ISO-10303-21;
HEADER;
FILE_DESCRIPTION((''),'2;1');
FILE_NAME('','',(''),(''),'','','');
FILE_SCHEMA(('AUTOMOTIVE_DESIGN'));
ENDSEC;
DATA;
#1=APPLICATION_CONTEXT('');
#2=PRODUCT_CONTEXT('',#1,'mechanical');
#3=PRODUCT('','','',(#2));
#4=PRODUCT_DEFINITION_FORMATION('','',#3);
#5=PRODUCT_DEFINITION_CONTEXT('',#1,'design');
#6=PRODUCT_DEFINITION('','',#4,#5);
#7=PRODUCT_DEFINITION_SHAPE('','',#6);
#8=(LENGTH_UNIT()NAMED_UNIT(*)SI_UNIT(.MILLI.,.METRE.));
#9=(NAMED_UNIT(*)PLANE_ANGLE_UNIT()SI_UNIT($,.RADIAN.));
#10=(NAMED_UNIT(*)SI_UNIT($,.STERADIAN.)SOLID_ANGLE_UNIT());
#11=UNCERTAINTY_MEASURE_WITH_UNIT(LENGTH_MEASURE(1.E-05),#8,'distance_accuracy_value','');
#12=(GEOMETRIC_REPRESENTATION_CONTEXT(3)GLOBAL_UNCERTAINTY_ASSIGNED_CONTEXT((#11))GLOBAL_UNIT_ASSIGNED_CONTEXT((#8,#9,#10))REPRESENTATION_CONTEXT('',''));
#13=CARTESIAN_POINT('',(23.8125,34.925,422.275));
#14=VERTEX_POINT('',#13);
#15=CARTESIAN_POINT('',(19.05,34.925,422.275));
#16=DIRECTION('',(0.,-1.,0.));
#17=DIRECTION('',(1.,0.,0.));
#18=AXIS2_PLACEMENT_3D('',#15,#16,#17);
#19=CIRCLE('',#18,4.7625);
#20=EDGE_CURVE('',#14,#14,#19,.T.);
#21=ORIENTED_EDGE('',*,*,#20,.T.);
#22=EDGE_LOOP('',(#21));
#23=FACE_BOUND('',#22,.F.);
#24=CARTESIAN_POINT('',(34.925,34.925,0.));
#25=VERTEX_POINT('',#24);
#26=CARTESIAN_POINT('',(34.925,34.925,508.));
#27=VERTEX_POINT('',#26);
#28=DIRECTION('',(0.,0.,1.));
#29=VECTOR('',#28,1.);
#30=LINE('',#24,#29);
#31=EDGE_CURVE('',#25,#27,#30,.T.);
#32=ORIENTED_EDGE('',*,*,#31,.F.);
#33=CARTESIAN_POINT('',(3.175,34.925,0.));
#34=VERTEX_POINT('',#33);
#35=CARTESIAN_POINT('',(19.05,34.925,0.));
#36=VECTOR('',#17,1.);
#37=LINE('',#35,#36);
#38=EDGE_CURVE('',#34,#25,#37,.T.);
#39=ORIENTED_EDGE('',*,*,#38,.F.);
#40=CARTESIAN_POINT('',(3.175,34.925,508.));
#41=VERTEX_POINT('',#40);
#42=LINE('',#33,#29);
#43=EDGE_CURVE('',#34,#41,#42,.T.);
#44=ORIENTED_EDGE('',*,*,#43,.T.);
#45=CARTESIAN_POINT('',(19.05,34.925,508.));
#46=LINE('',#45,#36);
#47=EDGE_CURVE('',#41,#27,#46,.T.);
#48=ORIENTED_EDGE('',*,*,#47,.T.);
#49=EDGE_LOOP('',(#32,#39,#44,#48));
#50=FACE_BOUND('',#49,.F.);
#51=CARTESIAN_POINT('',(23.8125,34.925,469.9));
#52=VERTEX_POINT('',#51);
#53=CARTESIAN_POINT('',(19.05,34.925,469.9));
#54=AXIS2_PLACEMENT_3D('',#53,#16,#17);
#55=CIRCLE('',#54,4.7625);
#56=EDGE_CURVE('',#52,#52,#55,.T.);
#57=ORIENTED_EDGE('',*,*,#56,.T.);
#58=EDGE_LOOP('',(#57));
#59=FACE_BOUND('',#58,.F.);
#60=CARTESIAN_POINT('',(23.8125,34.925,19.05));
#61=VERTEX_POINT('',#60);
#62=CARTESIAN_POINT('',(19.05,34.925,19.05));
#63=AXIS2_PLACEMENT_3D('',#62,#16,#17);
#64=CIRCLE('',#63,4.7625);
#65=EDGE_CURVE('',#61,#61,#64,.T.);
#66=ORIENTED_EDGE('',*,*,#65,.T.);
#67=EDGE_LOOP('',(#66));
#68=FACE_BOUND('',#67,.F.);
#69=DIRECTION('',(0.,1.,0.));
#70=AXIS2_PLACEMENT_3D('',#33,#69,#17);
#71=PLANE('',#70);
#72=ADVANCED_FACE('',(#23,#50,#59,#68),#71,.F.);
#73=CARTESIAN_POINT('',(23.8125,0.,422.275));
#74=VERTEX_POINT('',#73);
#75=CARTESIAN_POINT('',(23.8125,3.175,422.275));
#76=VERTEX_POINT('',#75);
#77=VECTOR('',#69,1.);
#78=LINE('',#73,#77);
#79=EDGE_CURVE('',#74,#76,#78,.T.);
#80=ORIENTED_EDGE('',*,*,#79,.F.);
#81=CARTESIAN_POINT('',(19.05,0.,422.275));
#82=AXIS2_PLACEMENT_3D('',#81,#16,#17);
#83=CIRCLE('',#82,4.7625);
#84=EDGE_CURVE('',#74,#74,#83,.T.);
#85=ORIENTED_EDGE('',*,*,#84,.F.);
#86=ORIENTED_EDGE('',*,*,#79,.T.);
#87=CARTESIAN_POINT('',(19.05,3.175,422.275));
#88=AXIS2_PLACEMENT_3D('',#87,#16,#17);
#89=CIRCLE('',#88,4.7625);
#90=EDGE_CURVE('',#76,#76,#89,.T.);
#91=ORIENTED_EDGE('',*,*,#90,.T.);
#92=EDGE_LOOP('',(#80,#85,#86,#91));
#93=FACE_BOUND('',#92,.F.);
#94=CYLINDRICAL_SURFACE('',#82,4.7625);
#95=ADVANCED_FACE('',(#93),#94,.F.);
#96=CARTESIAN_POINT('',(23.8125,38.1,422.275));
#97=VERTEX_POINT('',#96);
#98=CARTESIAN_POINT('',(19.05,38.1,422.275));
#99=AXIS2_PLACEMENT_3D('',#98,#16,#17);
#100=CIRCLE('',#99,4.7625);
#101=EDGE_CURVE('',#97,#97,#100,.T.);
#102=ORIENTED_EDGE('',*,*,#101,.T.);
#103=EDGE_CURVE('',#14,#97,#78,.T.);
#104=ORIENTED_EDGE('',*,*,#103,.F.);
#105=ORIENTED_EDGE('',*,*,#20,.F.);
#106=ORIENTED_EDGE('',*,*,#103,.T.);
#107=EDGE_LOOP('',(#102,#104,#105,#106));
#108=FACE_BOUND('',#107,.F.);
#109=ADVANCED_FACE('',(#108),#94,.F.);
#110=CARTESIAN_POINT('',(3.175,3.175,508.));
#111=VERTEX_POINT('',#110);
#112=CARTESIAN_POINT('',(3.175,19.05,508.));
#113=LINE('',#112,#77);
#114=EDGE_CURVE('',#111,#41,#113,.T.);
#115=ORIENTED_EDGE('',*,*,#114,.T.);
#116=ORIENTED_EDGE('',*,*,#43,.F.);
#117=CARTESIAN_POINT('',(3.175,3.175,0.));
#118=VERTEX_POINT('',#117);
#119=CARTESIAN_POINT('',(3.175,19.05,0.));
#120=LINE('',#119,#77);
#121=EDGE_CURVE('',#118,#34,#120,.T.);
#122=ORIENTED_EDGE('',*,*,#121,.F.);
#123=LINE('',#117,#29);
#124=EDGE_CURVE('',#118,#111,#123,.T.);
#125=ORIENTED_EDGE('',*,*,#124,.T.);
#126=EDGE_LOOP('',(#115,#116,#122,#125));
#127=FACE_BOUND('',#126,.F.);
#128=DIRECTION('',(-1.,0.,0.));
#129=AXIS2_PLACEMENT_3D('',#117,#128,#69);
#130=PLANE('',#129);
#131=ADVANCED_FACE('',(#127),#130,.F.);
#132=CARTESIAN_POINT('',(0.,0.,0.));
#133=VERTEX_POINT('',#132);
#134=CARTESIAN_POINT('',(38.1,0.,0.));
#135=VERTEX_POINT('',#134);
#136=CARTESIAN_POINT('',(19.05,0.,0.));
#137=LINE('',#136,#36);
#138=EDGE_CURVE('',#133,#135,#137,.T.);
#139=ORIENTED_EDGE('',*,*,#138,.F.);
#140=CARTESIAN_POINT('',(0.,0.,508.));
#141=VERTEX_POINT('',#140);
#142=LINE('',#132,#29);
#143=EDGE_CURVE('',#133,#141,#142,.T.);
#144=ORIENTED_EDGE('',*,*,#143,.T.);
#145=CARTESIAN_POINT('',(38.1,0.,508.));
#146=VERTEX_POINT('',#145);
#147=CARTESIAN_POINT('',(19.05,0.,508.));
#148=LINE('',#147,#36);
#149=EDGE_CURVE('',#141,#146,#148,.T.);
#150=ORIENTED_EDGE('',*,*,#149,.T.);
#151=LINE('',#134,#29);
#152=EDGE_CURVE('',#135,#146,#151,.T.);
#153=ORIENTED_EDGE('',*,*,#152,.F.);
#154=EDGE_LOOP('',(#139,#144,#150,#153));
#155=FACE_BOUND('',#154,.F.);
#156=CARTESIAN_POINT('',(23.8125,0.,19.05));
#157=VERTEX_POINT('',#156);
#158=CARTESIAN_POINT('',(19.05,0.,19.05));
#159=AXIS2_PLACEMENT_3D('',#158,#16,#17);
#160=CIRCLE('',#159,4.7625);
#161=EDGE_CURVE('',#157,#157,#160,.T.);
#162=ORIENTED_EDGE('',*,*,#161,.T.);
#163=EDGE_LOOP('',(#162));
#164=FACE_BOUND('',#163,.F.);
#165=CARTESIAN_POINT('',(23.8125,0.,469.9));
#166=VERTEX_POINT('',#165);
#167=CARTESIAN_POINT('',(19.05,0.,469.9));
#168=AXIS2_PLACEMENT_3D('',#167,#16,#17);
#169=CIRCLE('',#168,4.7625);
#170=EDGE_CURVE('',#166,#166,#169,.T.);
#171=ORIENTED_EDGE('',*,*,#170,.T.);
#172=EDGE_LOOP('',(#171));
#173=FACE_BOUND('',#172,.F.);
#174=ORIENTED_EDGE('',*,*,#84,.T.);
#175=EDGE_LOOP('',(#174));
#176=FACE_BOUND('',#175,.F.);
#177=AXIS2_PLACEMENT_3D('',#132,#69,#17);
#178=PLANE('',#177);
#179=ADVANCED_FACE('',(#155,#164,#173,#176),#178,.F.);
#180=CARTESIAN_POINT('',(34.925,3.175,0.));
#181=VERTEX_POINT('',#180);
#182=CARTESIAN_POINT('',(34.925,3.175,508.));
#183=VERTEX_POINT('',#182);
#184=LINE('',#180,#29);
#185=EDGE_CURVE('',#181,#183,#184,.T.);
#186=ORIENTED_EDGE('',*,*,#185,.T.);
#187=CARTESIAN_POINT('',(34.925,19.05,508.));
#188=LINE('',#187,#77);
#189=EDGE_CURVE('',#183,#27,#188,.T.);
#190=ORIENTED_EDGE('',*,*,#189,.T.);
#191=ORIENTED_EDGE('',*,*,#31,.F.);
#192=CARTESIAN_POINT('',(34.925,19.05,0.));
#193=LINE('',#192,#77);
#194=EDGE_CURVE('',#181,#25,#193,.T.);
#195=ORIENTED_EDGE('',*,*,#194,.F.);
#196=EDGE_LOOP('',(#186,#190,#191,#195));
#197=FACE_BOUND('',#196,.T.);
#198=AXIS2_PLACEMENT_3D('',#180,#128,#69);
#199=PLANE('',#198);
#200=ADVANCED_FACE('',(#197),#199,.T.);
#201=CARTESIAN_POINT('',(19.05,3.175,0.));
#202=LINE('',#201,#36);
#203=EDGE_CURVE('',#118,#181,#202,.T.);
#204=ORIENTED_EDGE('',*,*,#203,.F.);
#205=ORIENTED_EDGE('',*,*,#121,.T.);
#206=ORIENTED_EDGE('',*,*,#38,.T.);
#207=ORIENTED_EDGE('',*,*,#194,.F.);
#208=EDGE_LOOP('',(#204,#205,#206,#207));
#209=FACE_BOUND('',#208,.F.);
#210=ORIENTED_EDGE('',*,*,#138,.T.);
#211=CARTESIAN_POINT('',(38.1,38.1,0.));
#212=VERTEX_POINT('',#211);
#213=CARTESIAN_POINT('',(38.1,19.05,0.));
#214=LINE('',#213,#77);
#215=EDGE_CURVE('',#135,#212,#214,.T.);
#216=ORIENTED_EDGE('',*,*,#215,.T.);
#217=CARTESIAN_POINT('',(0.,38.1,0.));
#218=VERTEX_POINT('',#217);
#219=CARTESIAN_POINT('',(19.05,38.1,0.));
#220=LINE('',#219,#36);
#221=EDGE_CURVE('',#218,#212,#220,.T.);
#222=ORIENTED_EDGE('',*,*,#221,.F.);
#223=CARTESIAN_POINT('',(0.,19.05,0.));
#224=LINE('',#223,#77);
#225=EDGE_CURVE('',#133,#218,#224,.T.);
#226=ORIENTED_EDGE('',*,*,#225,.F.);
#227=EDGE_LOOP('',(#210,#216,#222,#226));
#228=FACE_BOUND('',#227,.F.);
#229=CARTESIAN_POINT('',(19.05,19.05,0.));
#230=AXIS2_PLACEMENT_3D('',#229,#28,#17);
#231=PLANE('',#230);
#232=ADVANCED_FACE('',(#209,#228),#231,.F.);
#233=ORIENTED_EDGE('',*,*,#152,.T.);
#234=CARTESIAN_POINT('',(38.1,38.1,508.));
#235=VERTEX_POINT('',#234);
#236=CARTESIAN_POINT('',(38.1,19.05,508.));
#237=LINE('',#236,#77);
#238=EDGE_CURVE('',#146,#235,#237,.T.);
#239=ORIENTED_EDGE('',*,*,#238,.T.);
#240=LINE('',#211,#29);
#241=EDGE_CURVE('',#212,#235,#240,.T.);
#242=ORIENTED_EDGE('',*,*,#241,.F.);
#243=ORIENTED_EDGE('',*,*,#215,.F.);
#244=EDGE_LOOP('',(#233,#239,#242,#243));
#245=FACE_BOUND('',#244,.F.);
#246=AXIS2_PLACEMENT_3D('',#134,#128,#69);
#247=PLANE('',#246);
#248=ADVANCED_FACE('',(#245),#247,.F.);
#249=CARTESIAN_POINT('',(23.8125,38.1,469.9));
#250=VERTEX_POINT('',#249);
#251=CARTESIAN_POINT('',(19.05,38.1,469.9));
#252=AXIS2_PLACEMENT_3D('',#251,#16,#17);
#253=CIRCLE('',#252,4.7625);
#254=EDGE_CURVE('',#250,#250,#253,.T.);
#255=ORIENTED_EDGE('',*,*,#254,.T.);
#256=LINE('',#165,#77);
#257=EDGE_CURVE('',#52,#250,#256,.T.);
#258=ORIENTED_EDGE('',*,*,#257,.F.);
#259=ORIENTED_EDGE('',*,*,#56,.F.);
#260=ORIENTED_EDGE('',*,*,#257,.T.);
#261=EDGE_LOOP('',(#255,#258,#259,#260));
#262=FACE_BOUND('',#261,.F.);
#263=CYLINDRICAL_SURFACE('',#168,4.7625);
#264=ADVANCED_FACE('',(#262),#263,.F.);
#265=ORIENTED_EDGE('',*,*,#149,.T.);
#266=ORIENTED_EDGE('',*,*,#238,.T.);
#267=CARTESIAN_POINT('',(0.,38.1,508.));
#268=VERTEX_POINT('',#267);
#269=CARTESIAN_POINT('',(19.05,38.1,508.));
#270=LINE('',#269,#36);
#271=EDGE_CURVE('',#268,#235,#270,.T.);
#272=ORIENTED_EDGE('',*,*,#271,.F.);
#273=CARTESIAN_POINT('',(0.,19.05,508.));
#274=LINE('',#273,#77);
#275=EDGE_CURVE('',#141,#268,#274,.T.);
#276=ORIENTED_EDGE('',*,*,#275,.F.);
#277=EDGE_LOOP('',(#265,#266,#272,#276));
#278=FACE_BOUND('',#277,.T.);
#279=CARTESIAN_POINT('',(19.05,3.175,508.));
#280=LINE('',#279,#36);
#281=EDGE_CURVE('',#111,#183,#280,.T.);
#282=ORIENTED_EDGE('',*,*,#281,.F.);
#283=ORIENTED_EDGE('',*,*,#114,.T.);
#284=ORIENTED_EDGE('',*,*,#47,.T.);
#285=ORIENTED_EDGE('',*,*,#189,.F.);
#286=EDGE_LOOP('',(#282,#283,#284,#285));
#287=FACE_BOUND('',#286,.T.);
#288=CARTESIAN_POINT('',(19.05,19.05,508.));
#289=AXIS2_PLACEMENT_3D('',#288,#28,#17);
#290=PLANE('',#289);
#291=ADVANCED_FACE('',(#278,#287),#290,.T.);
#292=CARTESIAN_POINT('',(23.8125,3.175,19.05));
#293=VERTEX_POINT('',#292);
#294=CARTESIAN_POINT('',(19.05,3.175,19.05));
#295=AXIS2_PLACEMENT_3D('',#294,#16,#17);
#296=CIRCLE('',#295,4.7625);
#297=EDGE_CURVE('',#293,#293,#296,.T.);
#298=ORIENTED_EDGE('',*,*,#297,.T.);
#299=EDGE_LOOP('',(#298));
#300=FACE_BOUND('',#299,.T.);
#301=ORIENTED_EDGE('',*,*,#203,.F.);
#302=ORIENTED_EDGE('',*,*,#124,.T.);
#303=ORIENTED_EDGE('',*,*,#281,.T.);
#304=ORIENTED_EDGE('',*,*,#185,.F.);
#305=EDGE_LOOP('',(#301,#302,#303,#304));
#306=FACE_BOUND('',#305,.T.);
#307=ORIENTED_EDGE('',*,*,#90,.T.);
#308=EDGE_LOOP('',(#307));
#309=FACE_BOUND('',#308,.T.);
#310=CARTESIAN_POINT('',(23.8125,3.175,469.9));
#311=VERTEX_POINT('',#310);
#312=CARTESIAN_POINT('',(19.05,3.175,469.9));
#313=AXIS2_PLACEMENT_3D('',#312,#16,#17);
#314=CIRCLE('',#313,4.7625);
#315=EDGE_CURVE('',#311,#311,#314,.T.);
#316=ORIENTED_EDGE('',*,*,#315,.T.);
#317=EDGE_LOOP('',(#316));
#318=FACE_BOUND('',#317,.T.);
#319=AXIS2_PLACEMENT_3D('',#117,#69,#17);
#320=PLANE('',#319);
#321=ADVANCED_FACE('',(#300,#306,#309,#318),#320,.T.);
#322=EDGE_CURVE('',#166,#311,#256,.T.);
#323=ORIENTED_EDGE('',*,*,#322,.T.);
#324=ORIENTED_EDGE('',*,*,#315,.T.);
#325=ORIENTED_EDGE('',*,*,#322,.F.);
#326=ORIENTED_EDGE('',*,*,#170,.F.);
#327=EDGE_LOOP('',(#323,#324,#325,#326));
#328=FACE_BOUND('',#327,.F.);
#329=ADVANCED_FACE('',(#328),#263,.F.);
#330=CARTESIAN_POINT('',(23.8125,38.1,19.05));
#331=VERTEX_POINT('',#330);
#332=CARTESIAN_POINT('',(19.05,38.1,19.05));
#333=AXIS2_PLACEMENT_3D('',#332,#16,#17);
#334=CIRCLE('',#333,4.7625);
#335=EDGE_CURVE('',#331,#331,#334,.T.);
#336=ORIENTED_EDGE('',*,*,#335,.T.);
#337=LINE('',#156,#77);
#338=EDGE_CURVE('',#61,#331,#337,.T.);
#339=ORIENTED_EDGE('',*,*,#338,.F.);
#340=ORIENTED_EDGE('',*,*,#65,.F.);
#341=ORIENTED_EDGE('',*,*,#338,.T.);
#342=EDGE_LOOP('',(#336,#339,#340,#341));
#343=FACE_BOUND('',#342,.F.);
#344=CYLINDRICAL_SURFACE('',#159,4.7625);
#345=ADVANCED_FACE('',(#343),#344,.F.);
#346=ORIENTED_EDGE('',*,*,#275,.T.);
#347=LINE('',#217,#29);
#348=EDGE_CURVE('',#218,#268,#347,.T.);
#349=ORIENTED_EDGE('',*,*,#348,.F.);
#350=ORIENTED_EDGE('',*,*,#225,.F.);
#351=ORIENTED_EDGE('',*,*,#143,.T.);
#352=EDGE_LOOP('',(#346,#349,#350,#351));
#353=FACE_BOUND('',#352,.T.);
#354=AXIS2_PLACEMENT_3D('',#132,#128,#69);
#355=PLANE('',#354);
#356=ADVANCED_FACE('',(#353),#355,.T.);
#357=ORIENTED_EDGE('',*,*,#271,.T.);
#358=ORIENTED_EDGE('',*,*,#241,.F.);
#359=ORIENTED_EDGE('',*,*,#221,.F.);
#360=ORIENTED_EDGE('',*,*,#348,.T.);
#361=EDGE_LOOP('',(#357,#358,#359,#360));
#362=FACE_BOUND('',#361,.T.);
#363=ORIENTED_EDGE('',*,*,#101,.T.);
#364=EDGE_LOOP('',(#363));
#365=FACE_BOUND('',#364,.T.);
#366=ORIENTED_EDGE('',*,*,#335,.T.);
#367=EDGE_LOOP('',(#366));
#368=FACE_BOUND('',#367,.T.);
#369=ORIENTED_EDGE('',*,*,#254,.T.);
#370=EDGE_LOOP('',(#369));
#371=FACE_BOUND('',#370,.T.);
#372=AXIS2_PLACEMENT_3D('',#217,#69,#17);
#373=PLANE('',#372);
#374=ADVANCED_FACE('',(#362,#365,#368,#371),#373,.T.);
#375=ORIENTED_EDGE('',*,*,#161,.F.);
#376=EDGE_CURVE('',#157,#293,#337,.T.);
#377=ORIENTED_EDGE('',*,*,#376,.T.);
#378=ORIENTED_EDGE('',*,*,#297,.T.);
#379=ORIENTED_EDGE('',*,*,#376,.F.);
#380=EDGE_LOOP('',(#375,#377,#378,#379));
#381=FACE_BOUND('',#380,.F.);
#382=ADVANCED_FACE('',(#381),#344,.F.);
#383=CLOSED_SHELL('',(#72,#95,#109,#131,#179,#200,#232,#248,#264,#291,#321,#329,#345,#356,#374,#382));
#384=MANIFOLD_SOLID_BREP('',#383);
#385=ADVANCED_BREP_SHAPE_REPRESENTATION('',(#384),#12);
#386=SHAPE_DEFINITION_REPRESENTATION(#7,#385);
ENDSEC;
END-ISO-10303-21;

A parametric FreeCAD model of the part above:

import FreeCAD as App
import Part
import Sketcher
Q = App.Units.Quantity


def add_polygon(sketch, points):
    """Adds a closed chain of lines whose ends are joined by coincident constraints."""
    first, n = sketch.GeometryCount, len(points)
    for a, b in zip(points, points[1:] + points[:1]):
        sketch.addGeometry(Part.LineSegment(App.Vector(*a, 0), App.Vector(*b, 0)), False)
    for i in range(n):
        sketch.addConstraint(Sketcher.Constraint("Coincident", first + i, 2, first + (i + 1) % n, 1))

doc = App.newDocument("Part")
body = doc.addObject("PartDesign::Body", "Body")

# Sketch on XY plane
sketch1 = doc.addObject("Sketcher::SketchObject", "Sketch")
body.addObject(sketch1)
sketch1.AttachmentSupport = (doc.XY_Plane, [""])
sketch1.MapMode = "FlatFace"
add_polygon(sketch1, [(0, 38), (0, 0), (38, 0), (38, 38)])  # lines 0-3
add_polygon(sketch1, [(35, 3), (3, 3), (3, 35), (35, 35)])  # lines 4-7
sketch1.addConstraint(Sketcher.Constraint("Vertical", 0))
sketch1.addConstraint(Sketcher.Constraint("Horizontal", 1))
sketch1.addConstraint(Sketcher.Constraint("Vertical", 2))
sketch1.addConstraint(Sketcher.Constraint("Horizontal", 3))
sketch1.addConstraint(Sketcher.Constraint("Horizontal", 4))
sketch1.addConstraint(Sketcher.Constraint("Vertical", 5))
sketch1.addConstraint(Sketcher.Constraint("Horizontal", 6))
sketch1.addConstraint(Sketcher.Constraint("Vertical", 7))
sketch1.addConstraint(Sketcher.Constraint("Coincident", 0, 2, -1, 1))
sketch1.addConstraint(Sketcher.Constraint("Equal", 3, 0))
sketch1.addConstraint(Sketcher.Constraint("Equal", 6, 5))
sketch1.addConstraint(Sketcher.Constraint("DistanceX", 1, 1, 1, 2, Q("1.5 in")))
sketch1.addConstraint(Sketcher.Constraint("DistanceX", 4, 2, 4, 1, Q("1.25 in")))
sketch1.addConstraint(Sketcher.Constraint("DistanceX", -1, 1, 4, 2, Q("0.125 in")))
sketch1.addConstraint(Sketcher.Constraint("DistanceY", -1, 1, 4, 2, Q("0.125 in")))
pad1 = doc.addObject("PartDesign::Pad", "Pad")
body.addObject(pad1)
pad1.Profile = sketch1
pad1.Length = Q("20 in")

# Sketch on XZ plane
sketch2 = doc.addObject("Sketcher::SketchObject", "Sketch001")
body.addObject(sketch2)
sketch2.AttachmentSupport = (doc.XZ_Plane, [""])
sketch2.MapMode = "FlatFace"
sketch2.addGeometry(Part.Circle(App.Vector(19.1, 19.1, 0), App.Vector(0, 0, 1), 4.8), False)
sketch2.addConstraint(Sketcher.Constraint("Diameter", 0, Q("0.375 in")))
sketch2.addConstraint(Sketcher.Constraint("DistanceX", -1, 1, 0, 3, Q("0.75 in")))
sketch2.addConstraint(Sketcher.Constraint("DistanceY", -1, 1, 0, 3, Q("0.75 in")))
pocket1 = doc.addObject("PartDesign::Pocket", "Pocket")
body.addObject(pocket1)
pocket1.Profile = sketch2
pocket1.Type = "ThroughAll"

# Sketch on XZ plane
sketch3 = doc.addObject("Sketcher::SketchObject", "Sketch002")
body.addObject(sketch3)
sketch3.AttachmentSupport = (doc.XZ_Plane, [""])
sketch3.MapMode = "FlatFace"
sketch3.addGeometry(Part.Circle(App.Vector(19.1, 422.3, 0), App.Vector(0, 0, 1), 4.8), False)
sketch3.addConstraint(Sketcher.Constraint("Diameter", 0, Q("0.375 in")))
sketch3.addConstraint(Sketcher.Constraint("DistanceX", -1, 1, 0, 3, Q("0.75 in")))
sketch3.addConstraint(Sketcher.Constraint("DistanceY", -1, 1, 0, 3, Q("16.625 in")))
pocket2 = doc.addObject("PartDesign::Pocket", "Pocket001")
body.addObject(pocket2)
pocket2.Profile = sketch3
pocket2.Type = "ThroughAll"

# Sketch on XZ plane
sketch4 = doc.addObject("Sketcher::SketchObject", "Sketch003")
body.addObject(sketch4)
sketch4.AttachmentSupport = (doc.XZ_Plane, [""])
sketch4.MapMode = "FlatFace"
sketch4.addGeometry(Part.Circle(App.Vector(19.1, 469.9, 0), App.Vector(0, 0, 1), 4.8), False)
sketch4.addConstraint(Sketcher.Constraint("Diameter", 0, Q("0.375 in")))
sketch4.addConstraint(Sketcher.Constraint("DistanceY", -1, 1, 0, 3, Q("18.5 in")))
sketch4.addConstraint(Sketcher.Constraint("DistanceX", -1, 1, 0, 3, Q("0.75 in")))
pocket3 = doc.addObject("PartDesign::Pocket", "Pocket002")
body.addObject(pocket3)
pocket3.Profile = sketch4
pocket3.Type = "ThroughAll"

doc.recompute()
